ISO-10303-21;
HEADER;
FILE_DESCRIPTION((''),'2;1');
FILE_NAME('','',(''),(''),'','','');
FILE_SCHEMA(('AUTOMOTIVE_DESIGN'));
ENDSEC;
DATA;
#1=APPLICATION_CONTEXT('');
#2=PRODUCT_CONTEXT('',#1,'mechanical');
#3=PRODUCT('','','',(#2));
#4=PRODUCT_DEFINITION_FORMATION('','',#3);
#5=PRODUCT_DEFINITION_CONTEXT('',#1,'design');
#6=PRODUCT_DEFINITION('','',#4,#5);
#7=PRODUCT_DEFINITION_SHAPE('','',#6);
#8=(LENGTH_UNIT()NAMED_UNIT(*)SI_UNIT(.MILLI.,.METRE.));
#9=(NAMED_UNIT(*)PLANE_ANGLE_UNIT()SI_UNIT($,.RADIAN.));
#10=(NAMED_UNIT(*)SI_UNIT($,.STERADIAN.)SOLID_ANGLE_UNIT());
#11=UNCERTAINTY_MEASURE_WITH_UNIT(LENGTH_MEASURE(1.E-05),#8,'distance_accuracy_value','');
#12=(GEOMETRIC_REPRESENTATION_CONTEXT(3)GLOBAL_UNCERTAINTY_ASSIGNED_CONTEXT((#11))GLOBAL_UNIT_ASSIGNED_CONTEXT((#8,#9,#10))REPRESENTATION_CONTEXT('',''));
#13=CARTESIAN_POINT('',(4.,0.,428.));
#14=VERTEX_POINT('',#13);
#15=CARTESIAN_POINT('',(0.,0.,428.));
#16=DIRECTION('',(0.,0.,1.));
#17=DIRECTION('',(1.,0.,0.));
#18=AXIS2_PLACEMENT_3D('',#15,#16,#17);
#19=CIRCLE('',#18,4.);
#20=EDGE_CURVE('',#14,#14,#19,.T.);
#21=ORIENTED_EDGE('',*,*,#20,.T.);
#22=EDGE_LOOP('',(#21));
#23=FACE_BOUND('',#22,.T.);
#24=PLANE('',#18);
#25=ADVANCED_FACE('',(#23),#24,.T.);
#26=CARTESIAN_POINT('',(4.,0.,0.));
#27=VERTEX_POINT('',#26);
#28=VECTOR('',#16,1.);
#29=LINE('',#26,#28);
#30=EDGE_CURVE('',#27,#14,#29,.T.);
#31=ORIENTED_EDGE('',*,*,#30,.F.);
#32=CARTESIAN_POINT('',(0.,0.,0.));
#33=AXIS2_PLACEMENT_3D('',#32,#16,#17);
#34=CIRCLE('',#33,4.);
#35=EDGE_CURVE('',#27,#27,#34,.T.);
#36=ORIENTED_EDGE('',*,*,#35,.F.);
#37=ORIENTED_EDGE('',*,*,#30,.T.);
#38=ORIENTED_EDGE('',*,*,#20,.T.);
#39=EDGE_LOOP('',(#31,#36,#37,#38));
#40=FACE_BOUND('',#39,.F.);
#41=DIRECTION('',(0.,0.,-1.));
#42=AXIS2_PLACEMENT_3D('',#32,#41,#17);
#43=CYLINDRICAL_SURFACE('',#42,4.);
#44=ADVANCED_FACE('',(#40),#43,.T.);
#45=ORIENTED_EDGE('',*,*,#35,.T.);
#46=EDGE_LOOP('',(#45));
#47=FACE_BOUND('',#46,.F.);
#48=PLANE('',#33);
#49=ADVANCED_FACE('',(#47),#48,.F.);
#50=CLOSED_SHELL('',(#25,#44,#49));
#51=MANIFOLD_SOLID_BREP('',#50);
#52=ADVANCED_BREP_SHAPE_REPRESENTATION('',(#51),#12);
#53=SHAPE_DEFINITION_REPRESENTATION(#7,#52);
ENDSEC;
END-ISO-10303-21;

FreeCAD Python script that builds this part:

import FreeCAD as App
import Part
import Sketcher
Q = App.Units.Quantity

doc = App.newDocument("Part")
body = doc.addObject("PartDesign::Body", "Body")

sketch1 = doc.addObject("Sketcher::SketchObject", "Sketch")
body.addObject(sketch1)
sketch1.AttachmentSupport = (doc.XY_Plane, [""])
sketch1.MapMode = "FlatFace"
sketch1.addGeometry(Part.Circle(App.Vector(0, 0, 0), App.Vector(0, 0, 1), 4), False)
sketch1.addConstraint(Sketcher.Constraint("Coincident", 0, 3, -1, 1))
sketch1.addConstraint(Sketcher.Constraint("Diameter", 0, Q("8 mm")))
pad1 = doc.addObject("PartDesign::Pad", "Pad")
body.addObject(pad1)
pad1.Profile = sketch1
pad1.Length = 428

doc.recompute()
